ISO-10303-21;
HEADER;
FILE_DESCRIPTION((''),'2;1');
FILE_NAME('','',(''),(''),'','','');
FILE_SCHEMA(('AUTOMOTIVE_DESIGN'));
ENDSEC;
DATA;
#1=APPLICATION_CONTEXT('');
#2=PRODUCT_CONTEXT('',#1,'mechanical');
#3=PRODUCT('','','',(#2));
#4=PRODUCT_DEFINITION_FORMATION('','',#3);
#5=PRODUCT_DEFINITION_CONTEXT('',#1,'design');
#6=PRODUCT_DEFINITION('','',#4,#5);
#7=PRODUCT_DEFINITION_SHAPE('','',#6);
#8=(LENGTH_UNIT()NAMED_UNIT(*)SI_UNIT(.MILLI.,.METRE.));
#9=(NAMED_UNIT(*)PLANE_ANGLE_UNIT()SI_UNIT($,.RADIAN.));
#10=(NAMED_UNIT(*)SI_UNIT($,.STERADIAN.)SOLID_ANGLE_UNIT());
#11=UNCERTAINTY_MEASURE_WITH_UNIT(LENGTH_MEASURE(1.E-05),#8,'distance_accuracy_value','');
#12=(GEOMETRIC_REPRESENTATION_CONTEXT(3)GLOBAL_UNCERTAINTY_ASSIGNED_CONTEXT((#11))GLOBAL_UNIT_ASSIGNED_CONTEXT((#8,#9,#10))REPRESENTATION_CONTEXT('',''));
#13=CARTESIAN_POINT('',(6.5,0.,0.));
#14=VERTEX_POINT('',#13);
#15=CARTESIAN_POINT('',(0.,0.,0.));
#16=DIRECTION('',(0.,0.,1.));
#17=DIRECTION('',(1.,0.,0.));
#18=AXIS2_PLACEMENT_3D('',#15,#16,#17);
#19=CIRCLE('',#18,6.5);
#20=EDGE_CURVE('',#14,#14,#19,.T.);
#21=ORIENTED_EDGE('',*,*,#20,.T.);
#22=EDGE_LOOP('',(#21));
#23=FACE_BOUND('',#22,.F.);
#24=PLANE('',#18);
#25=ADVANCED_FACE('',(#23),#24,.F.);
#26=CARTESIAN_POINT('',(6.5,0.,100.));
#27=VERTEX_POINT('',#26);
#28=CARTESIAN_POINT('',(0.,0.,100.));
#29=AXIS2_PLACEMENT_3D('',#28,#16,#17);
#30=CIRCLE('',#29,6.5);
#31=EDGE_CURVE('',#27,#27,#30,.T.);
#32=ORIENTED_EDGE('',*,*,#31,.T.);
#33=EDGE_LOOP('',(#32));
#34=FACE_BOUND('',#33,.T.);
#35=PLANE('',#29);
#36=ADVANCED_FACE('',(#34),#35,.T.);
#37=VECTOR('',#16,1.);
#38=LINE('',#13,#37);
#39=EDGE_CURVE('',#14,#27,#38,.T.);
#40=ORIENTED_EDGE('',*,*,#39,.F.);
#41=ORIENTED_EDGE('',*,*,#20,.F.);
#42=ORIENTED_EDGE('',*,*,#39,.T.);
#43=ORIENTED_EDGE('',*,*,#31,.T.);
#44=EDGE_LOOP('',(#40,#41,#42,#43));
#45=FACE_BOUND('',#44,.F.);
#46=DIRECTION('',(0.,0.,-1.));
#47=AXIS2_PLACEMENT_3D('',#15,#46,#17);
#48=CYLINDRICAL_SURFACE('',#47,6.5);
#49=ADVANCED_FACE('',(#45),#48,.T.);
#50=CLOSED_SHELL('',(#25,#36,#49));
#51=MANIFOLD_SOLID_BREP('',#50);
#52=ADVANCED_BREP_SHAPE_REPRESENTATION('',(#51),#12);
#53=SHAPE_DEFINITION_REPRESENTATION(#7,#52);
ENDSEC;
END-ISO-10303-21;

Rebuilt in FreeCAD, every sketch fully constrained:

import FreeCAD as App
import Part
import Sketcher
Q = App.Units.Quantity

doc = App.newDocument("Part")
params = doc.addObject("Spreadsheet::Sheet", "Params")
for row, (alias, value) in enumerate([
    ("pad1_length", "3.9370079 in"),
], start=1):
    params.set(f"A{row}", alias)
    params.set(f"B{row}", "=" + value)
    params.setAlias(f"B{row}", alias)

body = doc.addObject("PartDesign::Body", "Body")

# Sketch on XY plane
sketch1 = body.newObject("Sketcher::SketchObject", "Sketch")
sketch1.AttachmentSupport = (doc.getObject("XY_Plane"), [""])
sketch1.MapMode = "FlatFace"
sketch1.addGeometry(Part.Circle(App.Vector(0, 0, 0), App.Vector(0, 0, 1), 6), False)
sketch1.addConstraint([
    Sketcher.Constraint("Coincident", 0, 3, -1, 1),
    Sketcher.Constraint("Diameter", 0, Q("0.5118 in")),
])
pad1 = body.newObject("PartDesign::Pad", "Pad")
pad1.Profile = sketch1
pad1.setExpression("Length", "Params.pad1_length")

doc.recompute()
